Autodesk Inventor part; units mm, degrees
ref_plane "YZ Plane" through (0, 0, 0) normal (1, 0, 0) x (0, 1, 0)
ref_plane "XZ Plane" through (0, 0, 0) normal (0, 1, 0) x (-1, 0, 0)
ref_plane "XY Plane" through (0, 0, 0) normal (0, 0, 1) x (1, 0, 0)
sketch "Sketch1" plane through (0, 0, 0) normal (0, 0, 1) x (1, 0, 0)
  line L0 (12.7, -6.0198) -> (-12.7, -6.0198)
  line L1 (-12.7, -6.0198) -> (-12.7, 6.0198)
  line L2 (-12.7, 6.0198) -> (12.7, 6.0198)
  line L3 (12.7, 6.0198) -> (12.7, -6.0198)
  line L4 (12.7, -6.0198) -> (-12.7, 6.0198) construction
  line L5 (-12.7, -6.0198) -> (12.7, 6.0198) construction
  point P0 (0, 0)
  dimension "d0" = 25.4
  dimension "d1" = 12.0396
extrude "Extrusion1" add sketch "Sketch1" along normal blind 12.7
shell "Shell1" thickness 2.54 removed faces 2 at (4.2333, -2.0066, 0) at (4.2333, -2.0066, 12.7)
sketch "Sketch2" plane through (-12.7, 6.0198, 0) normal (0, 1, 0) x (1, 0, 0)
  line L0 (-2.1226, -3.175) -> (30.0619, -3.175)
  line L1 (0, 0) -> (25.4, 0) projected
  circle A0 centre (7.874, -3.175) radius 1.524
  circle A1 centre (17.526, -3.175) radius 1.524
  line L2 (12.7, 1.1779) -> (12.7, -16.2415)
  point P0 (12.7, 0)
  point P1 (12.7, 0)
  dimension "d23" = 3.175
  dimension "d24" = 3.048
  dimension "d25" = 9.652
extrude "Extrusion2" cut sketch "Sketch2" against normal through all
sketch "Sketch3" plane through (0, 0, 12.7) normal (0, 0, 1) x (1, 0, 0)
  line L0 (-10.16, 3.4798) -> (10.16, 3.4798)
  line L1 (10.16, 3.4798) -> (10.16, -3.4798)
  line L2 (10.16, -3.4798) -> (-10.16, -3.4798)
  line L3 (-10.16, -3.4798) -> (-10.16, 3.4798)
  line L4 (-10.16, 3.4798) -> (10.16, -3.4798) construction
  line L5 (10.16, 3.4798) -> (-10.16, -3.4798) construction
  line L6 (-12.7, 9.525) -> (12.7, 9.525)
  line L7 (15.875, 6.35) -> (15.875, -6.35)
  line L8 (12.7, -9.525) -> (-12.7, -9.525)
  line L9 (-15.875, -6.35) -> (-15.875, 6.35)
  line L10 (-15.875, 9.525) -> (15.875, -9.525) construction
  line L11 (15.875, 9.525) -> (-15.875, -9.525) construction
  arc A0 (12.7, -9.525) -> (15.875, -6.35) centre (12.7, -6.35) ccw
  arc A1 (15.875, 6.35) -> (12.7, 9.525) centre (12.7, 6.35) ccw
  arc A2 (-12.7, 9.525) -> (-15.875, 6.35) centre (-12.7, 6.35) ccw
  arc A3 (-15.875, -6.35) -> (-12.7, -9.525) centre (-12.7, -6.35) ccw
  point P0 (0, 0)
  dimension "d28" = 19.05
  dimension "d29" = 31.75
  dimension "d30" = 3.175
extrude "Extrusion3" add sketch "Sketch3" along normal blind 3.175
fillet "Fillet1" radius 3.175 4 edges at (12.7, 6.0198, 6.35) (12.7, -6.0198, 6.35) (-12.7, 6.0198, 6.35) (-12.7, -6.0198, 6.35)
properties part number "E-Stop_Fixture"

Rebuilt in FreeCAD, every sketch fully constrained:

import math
import FreeCAD as App
import Part
import Sketcher

V = App.Vector
Q = App.Units.Quantity


def edges_at(feature, points):
    """Names of the edges that pass closest to the given points."""
    edges = feature.Shape.Edges
    near = lambda p: min(range(len(edges)), key=lambda i: edges[i].distToShape(Part.Vertex(*p))[0])
    return sorted({f"Edge{near(p) + 1}" for p in points})


def faces_at(feature, points):
    """Names of the faces that lie closest to the given points."""
    faces = feature.Shape.Faces
    near = lambda p: min(range(len(faces)), key=lambda i: faces[i].distToShape(Part.Vertex(*p))[0])
    return sorted({f"Face{near(p) + 1}" for p in points})


def add_polygon(sketch, points):
    """Adds a closed chain of lines whose ends are joined by coincident constraints."""
    first, n = sketch.GeometryCount, len(points)
    for a, b in zip(points, points[1:] + points[:1]):
        sketch.addGeometry(Part.LineSegment(App.Vector(*a, 0), App.Vector(*b, 0)), False)
    for i in range(n):
        sketch.addConstraint(Sketcher.Constraint("Coincident", first + i, 2, first + (i + 1) % n, 1))

doc = App.newDocument("Part")
body = doc.addObject("PartDesign::Body", "Body")

# Sketch on XY plane
sketch1 = body.newObject("Sketcher::SketchObject", "Sketch")
sketch1.AttachmentSupport = (doc.getObject("XY_Plane"), [""])
sketch1.MapMode = "FlatFace"
add_polygon(sketch1, [(-13, -6), (13, -6), (13, 6), (-13, 6)])  # lines 0-3
sketch1.addConstraint([
    Sketcher.Constraint("Horizontal", 0),
    Sketcher.Constraint("Vertical", 1),
    Sketcher.Constraint("Horizontal", 2),
    Sketcher.Constraint("Vertical", 3),
    Sketcher.Constraint("Symmetric", 0, 2, 2, 2, -1, 1),
    Sketcher.Constraint("DistanceX", 0, 1, 0, 2, Q("1 in")),
    Sketcher.Constraint("DistanceY", 1, 1, 1, 2, Q("0.474 in")),
])
pad1 = body.newObject("PartDesign::Pad", "Pad")
pad1.Profile = sketch1
pad1.Length = Q("0.5 in")
doc.recompute()

thickness = body.newObject("PartDesign::Thickness", "Thickness")
thickness.Base = (pad1, faces_at(pad1, [(4.233, -2.007, 0), (4.233, -2.007, 12.7)]))
thickness.Value = Q("0.1 in")
thickness.Reversed = True
thickness.Join = "Intersection"

# Sketch on XZ plane
sketch2 = body.newObject("Sketcher::SketchObject", "Sketch001")
sketch2.AttachmentSupport = (doc.getObject("XZ_Plane"), [""])
sketch2.MapMode = "FlatFace"
sketch2.AttachmentOffset = App.Placement(V(0, 0, -0.237 * 25.4), App.Rotation())
sketch2.addGeometry([
    Part.Circle(V(-4.8, 3.2, 0), V(0, 0, 1), 1.5),
    Part.Circle(V(4.8, 3.2, 0), V(0, 0, 1), 1.5),
], False)
sketch2.addConstraint([
    Sketcher.Constraint("Equal", 0, 1),
    Sketcher.Constraint("Symmetric", 0, 3, 1, 3, -2),
    Sketcher.Constraint("Diameter", 0, Q("0.12 in")),
    Sketcher.Constraint("DistanceX", 0, 3, 1, 3, Q("0.38 in")),
    Sketcher.Constraint("DistanceY", -1, 1, 0, 3, Q("0.125 in")),
])
pocket1 = body.newObject("PartDesign::Pocket", "Pocket")
pocket1.Profile = sketch2
pocket1.Type = "ThroughAll"
pocket1.Reversed = True

# Sketch on XY plane
sketch3 = body.newObject("Sketcher::SketchObject", "Sketch002")
sketch3.AttachmentSupport = (doc.getObject("XY_Plane"), [""])
sketch3.MapMode = "FlatFace"
sketch3.AttachmentOffset = App.Placement(V(0, 0, 0.5 * 25.4), App.Rotation())
sketch3.addGeometry(Part.LineSegment(V(12.7, 9.5, 0), V(-12.7, 9.5, 0)), False)  # 0
sketch3.addGeometry(Part.ArcOfCircle(Part.Circle(V(-12.7, 6.3, 0), V(0, 0, 1), 3.2), math.radians(90), math.radians(180)), False)  # 1
sketch3.addGeometry(Part.LineSegment(V(-15.9, 6.3, 0), V(-15.9, -6.3, 0)), False)  # 2
sketch3.addGeometry(Part.ArcOfCircle(Part.Circle(V(-12.7, -6.3, 0), V(0, 0, 1), 3.2), math.radians(180), math.radians(270)), False)  # 3
sketch3.addGeometry(Part.LineSegment(V(-12.7, -9.5, 0), V(12.7, -9.5, 0)), False)  # 4
sketch3.addGeometry(Part.ArcOfCircle(Part.Circle(V(12.7, -6.3, 0), V(0, 0, 1), 3.2), math.radians(-90), math.radians(0)), False)  # 5
sketch3.addGeometry(Part.LineSegment(V(15.9, -6.3, 0), V(15.9, 6.3, 0)), False)  # 6
sketch3.addGeometry(Part.ArcOfCircle(Part.Circle(V(12.7, 6.3, 0), V(0, 0, 1), 3.2), math.radians(0), math.radians(90)), False)  # 7
add_polygon(sketch3, [(-10.2, -3.5), (-10.2, 3.5), (10.2, 3.5), (10.2, -3.5)])  # lines 8-11
sketch3.addConstraint([
    Sketcher.Constraint("Tangent", 0, 2, 1, 1),
    Sketcher.Constraint("Tangent", 1, 2, 2, 1),
    Sketcher.Constraint("Tangent", 2, 2, 3, 1),
    Sketcher.Constraint("Tangent", 3, 2, 4, 1),
    Sketcher.Constraint("Tangent", 4, 2, 5, 1),
    Sketcher.Constraint("Tangent", 5, 2, 6, 1),
    Sketcher.Constraint("Tangent", 6, 2, 7, 1),
    Sketcher.Constraint("Tangent", 7, 2, 0, 1),
    Sketcher.Constraint("Horizontal", 0),
    Sketcher.Constraint("Vertical", 2),
    Sketcher.Constraint("Horizontal", 4),
    Sketcher.Constraint("Vertical", 6),
    Sketcher.Constraint("Vertical", 8),
    Sketcher.Constraint("Horizontal", 9),
    Sketcher.Constraint("Vertical", 10),
    Sketcher.Constraint("Horizontal", 11),
    Sketcher.Constraint("Equal", 1, 3),
    Sketcher.Constraint("Equal", 3, 5),
    Sketcher.Constraint("Equal", 5, 7),
    Sketcher.Constraint("Symmetric", 1, 3, 5, 3, -1, 1),
    Sketcher.Constraint("Symmetric", 8, 2, 10, 2, -1, 1),
    Sketcher.Constraint("Radius", 1, Q("0.125 in")),
    Sketcher.Constraint("DistanceX", 0, 2, 0, 1, Q("1 in")),
    Sketcher.Constraint("DistanceY", 3, 2, 0, 2, Q("0.75 in")),
    Sketcher.Constraint("DistanceX", 9, 1, 9, 2, Q("0.8 in")),
    Sketcher.Constraint("DistanceY", 8, 1, 8, 2, Q("0.274 in")),
])
pad2 = body.newObject("PartDesign::Pad", "Pad001")
pad2.Profile = sketch3
pad2.Length = Q("0.125 in")
doc.recompute()

fillet = body.newObject("PartDesign::Fillet", "Fillet")
fillet.Base = (pad2, edges_at(pad2, [
    (12.7, 6.02, 6.35),
    (12.7, -6.02, 6.35),
    (-12.7, 6.02, 6.35),
    (-12.7, -6.02, 6.35),
]))
fillet.Radius = Q("0.125 in")

doc.recompute()
